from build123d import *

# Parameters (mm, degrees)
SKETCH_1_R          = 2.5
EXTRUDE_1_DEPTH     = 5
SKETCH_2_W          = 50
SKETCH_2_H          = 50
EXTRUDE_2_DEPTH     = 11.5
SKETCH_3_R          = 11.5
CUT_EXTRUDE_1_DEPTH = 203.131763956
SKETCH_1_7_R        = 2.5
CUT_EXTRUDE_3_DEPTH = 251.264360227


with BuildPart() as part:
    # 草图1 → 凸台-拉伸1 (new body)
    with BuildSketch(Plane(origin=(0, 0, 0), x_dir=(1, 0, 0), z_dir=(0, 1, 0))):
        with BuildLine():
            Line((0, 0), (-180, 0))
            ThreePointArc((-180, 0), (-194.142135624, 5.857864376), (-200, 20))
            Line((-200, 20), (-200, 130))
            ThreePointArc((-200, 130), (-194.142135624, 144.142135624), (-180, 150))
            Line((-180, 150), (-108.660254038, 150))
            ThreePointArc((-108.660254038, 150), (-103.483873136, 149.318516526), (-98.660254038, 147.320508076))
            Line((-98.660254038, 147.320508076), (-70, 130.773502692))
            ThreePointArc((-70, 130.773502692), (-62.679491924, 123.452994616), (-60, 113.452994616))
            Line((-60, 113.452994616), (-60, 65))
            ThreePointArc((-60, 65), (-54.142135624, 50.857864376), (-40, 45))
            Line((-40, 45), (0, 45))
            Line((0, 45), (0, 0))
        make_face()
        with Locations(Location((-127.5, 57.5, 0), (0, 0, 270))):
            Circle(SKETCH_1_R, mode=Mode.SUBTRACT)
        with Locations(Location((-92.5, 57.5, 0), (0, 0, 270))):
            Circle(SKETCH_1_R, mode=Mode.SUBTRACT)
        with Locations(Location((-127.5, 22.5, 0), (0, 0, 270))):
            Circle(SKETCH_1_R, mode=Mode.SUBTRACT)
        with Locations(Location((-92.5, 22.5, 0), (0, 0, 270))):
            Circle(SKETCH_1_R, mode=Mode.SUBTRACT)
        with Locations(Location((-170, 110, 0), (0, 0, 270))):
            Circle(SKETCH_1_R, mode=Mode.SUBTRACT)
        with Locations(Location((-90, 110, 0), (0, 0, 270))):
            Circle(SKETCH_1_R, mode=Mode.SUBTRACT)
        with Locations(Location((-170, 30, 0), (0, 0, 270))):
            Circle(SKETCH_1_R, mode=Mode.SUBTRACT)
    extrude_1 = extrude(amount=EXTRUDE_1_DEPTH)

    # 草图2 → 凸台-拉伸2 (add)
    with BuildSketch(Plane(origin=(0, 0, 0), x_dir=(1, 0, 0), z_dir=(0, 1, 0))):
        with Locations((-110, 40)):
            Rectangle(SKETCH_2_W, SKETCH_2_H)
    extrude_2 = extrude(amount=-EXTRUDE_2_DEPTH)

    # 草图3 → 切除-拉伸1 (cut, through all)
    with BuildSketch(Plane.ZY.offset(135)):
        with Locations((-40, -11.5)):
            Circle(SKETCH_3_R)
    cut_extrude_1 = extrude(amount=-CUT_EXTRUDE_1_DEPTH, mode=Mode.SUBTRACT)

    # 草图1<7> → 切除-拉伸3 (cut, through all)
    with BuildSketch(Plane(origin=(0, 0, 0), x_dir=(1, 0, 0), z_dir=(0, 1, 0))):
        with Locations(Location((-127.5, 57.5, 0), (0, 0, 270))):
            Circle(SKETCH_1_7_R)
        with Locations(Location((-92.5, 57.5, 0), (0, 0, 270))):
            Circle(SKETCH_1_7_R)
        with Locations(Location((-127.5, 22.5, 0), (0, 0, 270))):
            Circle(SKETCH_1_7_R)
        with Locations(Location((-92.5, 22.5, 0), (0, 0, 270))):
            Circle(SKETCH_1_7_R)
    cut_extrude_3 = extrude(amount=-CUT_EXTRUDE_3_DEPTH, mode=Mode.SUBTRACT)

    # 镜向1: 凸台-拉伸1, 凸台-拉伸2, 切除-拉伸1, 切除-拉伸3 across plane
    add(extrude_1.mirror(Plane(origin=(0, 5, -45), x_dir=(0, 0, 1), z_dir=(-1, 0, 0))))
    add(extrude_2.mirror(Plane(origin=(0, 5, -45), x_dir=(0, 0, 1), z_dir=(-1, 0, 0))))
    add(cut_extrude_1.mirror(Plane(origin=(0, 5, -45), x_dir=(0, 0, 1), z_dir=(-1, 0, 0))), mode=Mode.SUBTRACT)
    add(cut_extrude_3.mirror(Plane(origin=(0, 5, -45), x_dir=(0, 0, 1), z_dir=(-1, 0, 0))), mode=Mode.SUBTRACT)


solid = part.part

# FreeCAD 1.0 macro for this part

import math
import FreeCAD as App
import Part
import Sketcher

V = App.Vector
Q = App.Units.Quantity


def add_polygon(sketch, points):
    """Adds a closed chain of lines whose ends are joined by coincident constraints."""
    first, n = sketch.GeometryCount, len(points)
    for a, b in zip(points, points[1:] + points[:1]):
        sketch.addGeometry(Part.LineSegment(App.Vector(*a, 0), App.Vector(*b, 0)), False)
    for i in range(n):
        sketch.addConstraint(Sketcher.Constraint("Coincident", first + i, 2, first + (i + 1) % n, 1))

doc = App.newDocument("Part")
body = doc.addObject("PartDesign::Body", "Body")

sketch1 = body.newObject("Sketcher::SketchObject", "Sketch")
sketch1.AttachmentSupport = (doc.getObject("XZ_Plane"), [""])
sketch1.MapMode = "FlatFace"
sketch1.addGeometry(Part.LineSegment(V(-180, 0, 0), V(0, 0, 0)), False)
sketch1.addGeometry(Part.LineSegment(V(0, 0, 0), V(0, -45, 0)), False)
sketch1.addGeometry(Part.LineSegment(V(0, -45, 0), V(-40, -45, 0)), False)
sketch1.addGeometry(Part.ArcOfCircle(Part.Circle(V(-40, -65, 0), V(0, 0, 1), 20), math.radians(90), math.radians(180)), False)
sketch1.addGeometry(Part.LineSegment(V(-60, -65, 0), V(-60, -113.5, 0)), False)
sketch1.addGeometry(Part.ArcOfCircle(Part.Circle(V(-80, -113.5, 0), V(0, 0, 1), 20), math.radians(-60), math.radians(0)), False)
sketch1.addGeometry(Part.LineSegment(V(-70, -130.8, 0), V(-98.7, -147.3, 0)), False)
sketch1.addGeometry(Part.ArcOfCircle(Part.Circle(V(-108.7, -130, 0), V(0, 0, 1), 20), math.radians(-90), math.radians(-60)), False)
sketch1.addGeometry(Part.LineSegment(V(-108.7, -150, 0), V(-180, -150, 0)), False)
sketch1.addGeometry(Part.ArcOfCircle(Part.Circle(V(-180, -130, 0), V(0, 0, 1), 20), math.radians(180), math.radians(270)), False)
sketch1.addGeometry(Part.LineSegment(V(-200, -130, 0), V(-200, -20, 0)), False)
sketch1.addGeometry(Part.ArcOfCircle(Part.Circle(V(-180, -20, 0), V(0, 0, 1), 20), math.radians(90), math.radians(180)), False)
sketch1.addGeometry(Part.Circle(V(-92.5, -22.5, 0), V(0, 0, 1), 2.5), False)
sketch1.addGeometry(Part.Circle(V(-127.5, -22.5, 0), V(0, 0, 1), 2.5), False)
sketch1.addGeometry(Part.Circle(V(-92.5, -57.5, 0), V(0, 0, 1), 2.5), False)
sketch1.addGeometry(Part.Circle(V(-127.5, -57.5, 0), V(0, 0, 1), 2.5), False)
sketch1.addGeometry(Part.Circle(V(-170, -30, 0), V(0, 0, 1), 2.5), False)
sketch1.addGeometry(Part.Circle(V(-90, -110, 0), V(0, 0, 1), 2.5), False)
sketch1.addGeometry(Part.Circle(V(-170, -110, 0), V(0, 0, 1), 2.5), False)
sketch1.addConstraint(Sketcher.Constraint("Coincident", 0, 2, 1, 1))
sketch1.addConstraint(Sketcher.Constraint("Coincident", 1, 2, 2, 1))
sketch1.addConstraint(Sketcher.Constraint("Tangent", 2, 2, 3, 1))
sketch1.addConstraint(Sketcher.Constraint("Tangent", 3, 2, 4, 1))
sketch1.addConstraint(Sketcher.Constraint("Tangent", 4, 2, 5, 2))
sketch1.addConstraint(Sketcher.Constraint("Tangent", 5, 1, 6, 1))
sketch1.addConstraint(Sketcher.Constraint("Tangent", 6, 2, 7, 2))
sketch1.addConstraint(Sketcher.Constraint("Tangent", 7, 1, 8, 1))
sketch1.addConstraint(Sketcher.Constraint("Tangent", 8, 2, 9, 2))
sketch1.addConstraint(Sketcher.Constraint("Tangent", 9, 1, 10, 1))
sketch1.addConstraint(Sketcher.Constraint("Tangent", 10, 2, 11, 2))
sketch1.addConstraint(Sketcher.Constraint("Tangent", 11, 1, 0, 1))
sketch1.addConstraint(Sketcher.Constraint("Horizontal", 0))
sketch1.addConstraint(Sketcher.Constraint("Vertical", 1))
sketch1.addConstraint(Sketcher.Constraint("Horizontal", 2))
sketch1.addConstraint(Sketcher.Constraint("Vertical", 4))
sketch1.addConstraint(Sketcher.Constraint("Horizontal", 8))
sketch1.addConstraint(Sketcher.Constraint("Vertical", 10))
sketch1.addConstraint(Sketcher.Constraint("Coincident", 0, 2, -1, 1))
sketch1.addConstraint(Sketcher.Constraint("Equal", 3, 5))
sketch1.addConstraint(Sketcher.Constraint("Equal", 5, 7))
sketch1.addConstraint(Sketcher.Constraint("Equal", 7, 9))
sketch1.addConstraint(Sketcher.Constraint("Equal", 9, 11))
sketch1.addConstraint(Sketcher.Constraint("Equal", 12, 13))
sketch1.addConstraint(Sketcher.Constraint("Equal", 13, 14))
sketch1.addConstraint(Sketcher.Constraint("Equal", 14, 15))
sketch1.addConstraint(Sketcher.Constraint("Equal", 15, 16))
sketch1.addConstraint(Sketcher.Constraint("Equal", 16, 17))
sketch1.addConstraint(Sketcher.Constraint("Equal", 17, 18))
sketch1.addConstraint(Sketcher.Constraint("Horizontal", 12, 3, 13, 3))
sketch1.addConstraint(Sketcher.Constraint("Horizontal", 14, 3, 15, 3))
sketch1.addConstraint(Sketcher.Constraint("Horizontal", 17, 3, 18, 3))
sketch1.addConstraint(Sketcher.Constraint("Vertical", 12, 3, 14, 3))
sketch1.addConstraint(Sketcher.Constraint("Vertical", 13, 3, 15, 3))
sketch1.addConstraint(Sketcher.Constraint("Vertical", 16, 3, 18, 3))
sketch1.addConstraint(Sketcher.Constraint("Diameter", 12, 5.0))
sketch1.addConstraint(Sketcher.Constraint("Radius", 3, 20.0))
sketch1.addConstraint(Sketcher.Constraint("DistanceX", 0, 1, 0, 2, 180.0))
sketch1.addConstraint(Sketcher.Constraint("DistanceX", 2, 2, 2, 1, 40.0))
sketch1.addConstraint(Sketcher.Constraint("DistanceY", 1, 2, 1, 1, 45.0))
sketch1.addConstraint(Sketcher.Constraint("DistanceY", 10, 1, 10, 2, 110.0))
sketch1.addConstraint(Sketcher.Constraint("Angle", 6, Q("-150 deg")))
sketch1.addConstraint(Sketcher.Constraint("DistanceX", 16, 3, -1, 1, 170.0))
sketch1.addConstraint(Sketcher.Constraint("DistanceY", 16, 3, -1, 1, 30.0))
sketch1.addConstraint(Sketcher.Constraint("DistanceX", 17, 3, -1, 1, 90.0))
sketch1.addConstraint(Sketcher.Constraint("DistanceY", 17, 3, -1, 1, 110.0))
sketch1.addConstraint(Sketcher.Constraint("DistanceX", 13, 3, 12, 3, 35.0))
sketch1.addConstraint(Sketcher.Constraint("DistanceY", 14, 3, 12, 3, 35.0))
sketch1.addConstraint(Sketcher.Constraint("DistanceX", 12, 3, -1, 1, 92.5))
sketch1.addConstraint(Sketcher.Constraint("DistanceY", 12, 3, -1, 1, 22.5))
sketch1.addConstraint(Sketcher.Constraint("Distance", 6, 33.094011))
pad1 = body.newObject("PartDesign::Pad", "Pad")
pad1.Profile = sketch1
pad1.Length = 5
pad1.Reversed = True

sketch2 = body.newObject("Sketcher::SketchObject", "Sketch001")
sketch2.AttachmentSupport = (doc.getObject("XZ_Plane"), [""])
sketch2.MapMode = "FlatFace"
add_polygon(sketch2, [(-135, -65), (-135, -15), (-85, -15), (-85, -65)])
sketch2.addConstraint(Sketcher.Constraint("Vertical", 0))
sketch2.addConstraint(Sketcher.Constraint("Horizontal", 1))
sketch2.addConstraint(Sketcher.Constraint("Vertical", 2))
sketch2.addConstraint(Sketcher.Constraint("Horizontal", 3))
sketch2.addConstraint(Sketcher.Constraint("Equal", 3, 0))
sketch2.addConstraint(Sketcher.Constraint("DistanceX", 1, 1, 1, 2, 50.0))
sketch2.addConstraint(Sketcher.Constraint("DistanceX", 0, 2, -1, 1, 135.0))
sketch2.addConstraint(Sketcher.Constraint("DistanceY", 0, 2, -1, 1, 15.0))
pad2 = body.newObject("PartDesign::Pad", "Pad001")
pad2.Profile = sketch2
pad2.Length = 11.5

sketch3 = body.newObject("Sketcher::SketchObject", "Sketch002")
sketch3.AttachmentSupport = (doc.getObject("YZ_Plane"), [""])
sketch3.MapMode = "FlatFace"
sketch3.AttachmentOffset = App.Placement(V(0, 0, -135), App.Rotation())
sketch3.addGeometry(Part.Circle(V(-12, -40, 0), V(0, 0, 1), 12), False)
sketch3.addConstraint(Sketcher.Constraint("Diameter", 0, 23.0))
sketch3.addConstraint(Sketcher.Constraint("DistanceY", 0, 3, -1, 1, 40.0))
sketch3.addConstraint(Sketcher.Constraint("DistanceX", 0, 3, -1, 1, 11.5))
pocket1 = body.newObject("PartDesign::Pocket", "Pocket")
pocket1.Profile = sketch3
pocket1.Type = "ThroughAll"
pocket1.Reversed = True

sketch4 = body.newObject("Sketcher::SketchObject", "Sketch003")
sketch4.AttachmentSupport = (doc.getObject("XZ_Plane"), [""])
sketch4.MapMode = "FlatFace"
sketch4.addGeometry(Part.Circle(V(-127.5, -57.5, 0), V(0, 0, 1), 2.5), False)
sketch4.addGeometry(Part.Circle(V(-92.5, -57.5, 0), V(0, 0, 1), 2.5), False)
sketch4.addGeometry(Part.Circle(V(-127.5, -22.5, 0), V(0, 0, 1), 2.5), False)
sketch4.addGeometry(Part.Circle(V(-92.5, -22.5, 0), V(0, 0, 1), 2.5), False)
sketch4.addConstraint(Sketcher.Constraint("Equal", 0, 1))
sketch4.addConstraint(Sketcher.Constraint("Equal", 1, 2))
sketch4.addConstraint(Sketcher.Constraint("Equal", 2, 3))
sketch4.addConstraint(Sketcher.Constraint("Horizontal", 0, 3, 1, 3))
sketch4.addConstraint(Sketcher.Constraint("Horizontal", 2, 3, 3, 3))
sketch4.addConstraint(Sketcher.Constraint("Vertical", 0, 3, 2, 3))
sketch4.addConstraint(Sketcher.Constraint("Vertical", 1, 3, 3, 3))
sketch4.addConstraint(Sketcher.Constraint("Diameter", 0, 5.0))
sketch4.addConstraint(Sketcher.Constraint("DistanceX", 0, 3, 1, 3, 35.0))
sketch4.addConstraint(Sketcher.Constraint("DistanceY", 0, 3, 2, 3, 35.0))
sketch4.addConstraint(Sketcher.Constraint("DistanceX", 0, 3, -1, 1, 127.5))
sketch4.addConstraint(Sketcher.Constraint("DistanceY", 0, 3, -1, 1, 57.5))
pocket2 = body.newObject("PartDesign::Pocket", "Pocket001")
pocket2.Profile = sketch4
pocket2.Type = "ThroughAll"
pocket2.Reversed = True
doc.recompute()

mirrored = body.newObject("PartDesign::Mirrored", "Mirrored")
mirrored.Originals = [pad1, pad2, pocket1, pocket2]
mirrored.MirrorPlane = (doc.getObject("YZ_Plane"), [""])
body.Tip = mirrored

doc.recompute()
